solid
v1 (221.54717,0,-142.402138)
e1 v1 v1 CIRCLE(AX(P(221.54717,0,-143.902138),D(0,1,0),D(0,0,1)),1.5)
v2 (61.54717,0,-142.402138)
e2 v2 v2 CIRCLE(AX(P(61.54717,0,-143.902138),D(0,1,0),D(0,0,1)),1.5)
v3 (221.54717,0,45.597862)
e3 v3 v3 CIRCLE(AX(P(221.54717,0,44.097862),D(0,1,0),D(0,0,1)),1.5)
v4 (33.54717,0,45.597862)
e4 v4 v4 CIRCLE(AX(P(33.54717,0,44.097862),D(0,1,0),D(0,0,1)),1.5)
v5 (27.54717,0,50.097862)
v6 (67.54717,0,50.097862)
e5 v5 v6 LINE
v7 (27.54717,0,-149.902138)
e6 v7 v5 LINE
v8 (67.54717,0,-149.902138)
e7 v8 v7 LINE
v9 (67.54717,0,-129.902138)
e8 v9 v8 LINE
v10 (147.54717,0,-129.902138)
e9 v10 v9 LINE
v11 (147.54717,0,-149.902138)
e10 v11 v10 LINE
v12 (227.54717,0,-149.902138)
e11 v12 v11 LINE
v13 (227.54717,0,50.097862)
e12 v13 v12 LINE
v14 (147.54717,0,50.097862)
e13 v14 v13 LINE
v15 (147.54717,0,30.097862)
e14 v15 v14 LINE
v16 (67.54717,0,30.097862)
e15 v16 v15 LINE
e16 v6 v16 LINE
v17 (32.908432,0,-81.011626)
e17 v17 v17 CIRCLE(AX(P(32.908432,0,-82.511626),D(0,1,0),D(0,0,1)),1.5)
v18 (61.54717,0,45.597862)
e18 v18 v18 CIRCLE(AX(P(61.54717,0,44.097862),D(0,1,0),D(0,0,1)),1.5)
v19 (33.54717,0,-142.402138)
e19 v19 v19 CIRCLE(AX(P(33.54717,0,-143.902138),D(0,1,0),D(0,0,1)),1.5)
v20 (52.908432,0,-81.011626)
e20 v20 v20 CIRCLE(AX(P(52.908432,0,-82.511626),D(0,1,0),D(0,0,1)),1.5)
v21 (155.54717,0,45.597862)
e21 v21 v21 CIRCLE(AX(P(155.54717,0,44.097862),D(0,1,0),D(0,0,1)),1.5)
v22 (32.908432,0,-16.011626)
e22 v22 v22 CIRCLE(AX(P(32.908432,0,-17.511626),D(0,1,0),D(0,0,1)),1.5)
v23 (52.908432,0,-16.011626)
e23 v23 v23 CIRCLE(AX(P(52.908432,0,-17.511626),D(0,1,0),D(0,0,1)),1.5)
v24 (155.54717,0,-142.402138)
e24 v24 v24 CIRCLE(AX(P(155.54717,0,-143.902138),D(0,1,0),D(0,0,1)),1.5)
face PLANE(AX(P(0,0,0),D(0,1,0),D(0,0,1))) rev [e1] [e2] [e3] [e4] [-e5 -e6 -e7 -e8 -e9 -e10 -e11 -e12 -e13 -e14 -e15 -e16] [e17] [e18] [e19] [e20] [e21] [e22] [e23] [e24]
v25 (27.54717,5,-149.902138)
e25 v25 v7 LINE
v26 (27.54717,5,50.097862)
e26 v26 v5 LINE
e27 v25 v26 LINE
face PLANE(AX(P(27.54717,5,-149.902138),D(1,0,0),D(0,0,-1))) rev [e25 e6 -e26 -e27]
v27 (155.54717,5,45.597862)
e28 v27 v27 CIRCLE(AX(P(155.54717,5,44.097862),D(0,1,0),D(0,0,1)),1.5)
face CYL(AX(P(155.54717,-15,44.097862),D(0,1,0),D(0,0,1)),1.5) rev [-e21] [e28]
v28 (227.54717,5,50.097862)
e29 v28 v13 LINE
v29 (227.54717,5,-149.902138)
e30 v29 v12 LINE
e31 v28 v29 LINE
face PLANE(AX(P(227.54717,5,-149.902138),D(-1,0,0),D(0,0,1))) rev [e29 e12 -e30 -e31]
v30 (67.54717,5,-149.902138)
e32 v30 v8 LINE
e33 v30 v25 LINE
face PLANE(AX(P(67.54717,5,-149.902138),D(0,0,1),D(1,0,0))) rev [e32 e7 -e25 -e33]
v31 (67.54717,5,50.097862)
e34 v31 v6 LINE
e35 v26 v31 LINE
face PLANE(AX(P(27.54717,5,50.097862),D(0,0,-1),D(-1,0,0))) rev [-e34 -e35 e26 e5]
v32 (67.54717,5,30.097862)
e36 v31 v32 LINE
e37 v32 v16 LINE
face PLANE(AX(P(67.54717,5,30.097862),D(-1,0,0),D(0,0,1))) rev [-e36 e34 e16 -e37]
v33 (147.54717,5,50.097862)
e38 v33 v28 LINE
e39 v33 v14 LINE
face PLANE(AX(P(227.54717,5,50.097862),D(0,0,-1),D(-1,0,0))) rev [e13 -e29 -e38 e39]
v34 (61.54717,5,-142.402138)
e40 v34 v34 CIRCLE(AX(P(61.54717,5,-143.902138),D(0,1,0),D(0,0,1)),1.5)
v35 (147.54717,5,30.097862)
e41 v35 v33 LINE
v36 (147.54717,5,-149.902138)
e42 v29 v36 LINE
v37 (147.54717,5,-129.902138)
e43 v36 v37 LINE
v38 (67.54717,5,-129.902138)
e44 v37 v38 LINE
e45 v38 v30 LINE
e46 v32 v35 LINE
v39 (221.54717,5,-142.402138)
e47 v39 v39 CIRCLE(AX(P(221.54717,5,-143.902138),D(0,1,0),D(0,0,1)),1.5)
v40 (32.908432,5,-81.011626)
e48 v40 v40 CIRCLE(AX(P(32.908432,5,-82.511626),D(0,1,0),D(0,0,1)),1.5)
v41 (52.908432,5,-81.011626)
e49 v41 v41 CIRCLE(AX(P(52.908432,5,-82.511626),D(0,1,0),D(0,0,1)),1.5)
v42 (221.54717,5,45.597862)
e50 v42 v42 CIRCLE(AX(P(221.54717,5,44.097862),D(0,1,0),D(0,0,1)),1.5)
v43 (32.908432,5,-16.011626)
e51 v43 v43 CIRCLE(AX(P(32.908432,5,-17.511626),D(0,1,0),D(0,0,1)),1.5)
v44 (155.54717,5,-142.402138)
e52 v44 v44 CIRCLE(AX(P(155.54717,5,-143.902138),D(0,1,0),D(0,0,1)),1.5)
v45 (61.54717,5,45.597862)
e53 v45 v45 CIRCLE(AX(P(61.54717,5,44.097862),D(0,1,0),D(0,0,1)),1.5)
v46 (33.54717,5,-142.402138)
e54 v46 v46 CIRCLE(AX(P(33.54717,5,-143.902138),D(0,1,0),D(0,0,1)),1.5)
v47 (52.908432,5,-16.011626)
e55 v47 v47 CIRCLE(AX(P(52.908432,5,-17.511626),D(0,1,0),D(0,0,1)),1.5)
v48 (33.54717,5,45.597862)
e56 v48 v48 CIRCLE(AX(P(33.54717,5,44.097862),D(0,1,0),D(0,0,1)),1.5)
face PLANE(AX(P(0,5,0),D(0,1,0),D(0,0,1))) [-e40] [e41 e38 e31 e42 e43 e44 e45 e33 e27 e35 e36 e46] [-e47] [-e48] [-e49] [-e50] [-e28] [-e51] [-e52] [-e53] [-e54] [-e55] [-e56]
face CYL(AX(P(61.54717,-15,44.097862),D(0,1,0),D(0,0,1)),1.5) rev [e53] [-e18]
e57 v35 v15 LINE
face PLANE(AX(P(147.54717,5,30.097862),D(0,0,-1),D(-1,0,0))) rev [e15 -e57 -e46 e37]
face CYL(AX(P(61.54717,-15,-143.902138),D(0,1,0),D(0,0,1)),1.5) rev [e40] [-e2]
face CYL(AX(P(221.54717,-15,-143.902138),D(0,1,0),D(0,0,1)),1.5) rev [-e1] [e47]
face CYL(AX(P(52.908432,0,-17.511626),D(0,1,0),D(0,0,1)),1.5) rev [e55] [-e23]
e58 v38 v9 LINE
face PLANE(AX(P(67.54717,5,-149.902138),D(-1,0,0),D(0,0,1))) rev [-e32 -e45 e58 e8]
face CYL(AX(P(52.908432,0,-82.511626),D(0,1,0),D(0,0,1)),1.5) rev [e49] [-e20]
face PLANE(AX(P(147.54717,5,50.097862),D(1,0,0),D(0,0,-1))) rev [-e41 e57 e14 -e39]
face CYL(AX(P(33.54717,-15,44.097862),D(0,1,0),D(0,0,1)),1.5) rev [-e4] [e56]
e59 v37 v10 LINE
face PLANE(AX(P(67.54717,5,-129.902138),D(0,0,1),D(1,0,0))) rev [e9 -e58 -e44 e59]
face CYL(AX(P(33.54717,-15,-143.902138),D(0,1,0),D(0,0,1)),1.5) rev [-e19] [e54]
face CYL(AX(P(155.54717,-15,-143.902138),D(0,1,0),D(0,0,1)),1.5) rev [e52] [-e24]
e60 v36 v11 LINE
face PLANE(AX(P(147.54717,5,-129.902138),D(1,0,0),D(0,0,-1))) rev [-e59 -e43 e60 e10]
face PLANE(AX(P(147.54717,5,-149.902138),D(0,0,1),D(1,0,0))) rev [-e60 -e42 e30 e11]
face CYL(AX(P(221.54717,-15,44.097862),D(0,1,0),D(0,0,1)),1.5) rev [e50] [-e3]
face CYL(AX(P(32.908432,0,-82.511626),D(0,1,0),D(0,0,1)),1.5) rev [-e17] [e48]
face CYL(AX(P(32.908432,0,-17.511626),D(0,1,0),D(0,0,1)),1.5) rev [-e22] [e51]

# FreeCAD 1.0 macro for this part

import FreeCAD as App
import Part
import Sketcher
Q = App.Units.Quantity

doc = App.newDocument("Part")
body = doc.addObject("PartDesign::Body", "Body")

sketch1 = body.newObject("Sketcher::SketchObject", "Sketch")
sketch1.AttachmentSupport = (doc.getObject("XZ_Plane"), [""])
sketch1.MapMode = "FlatFace"
sketch1.addGeometry(Part.LineSegment(App.Vector(68, -130, 0), App.Vector(68, -150, 0)), False)
sketch1.addGeometry(Part.LineSegment(App.Vector(68, -150, 0), App.Vector(28, -150, 0)), False)
sketch1.addGeometry(Part.LineSegment(App.Vector(28, -150, 0), App.Vector(28, 50, 0)), False)
sketch1.addGeometry(Part.LineSegment(App.Vector(28, 50, 0), App.Vector(68, 50, 0)), False)
sketch1.addGeometry(Part.LineSegment(App.Vector(68, 50, 0), App.Vector(68, 30, 0)), False)
sketch1.addGeometry(Part.LineSegment(App.Vector(68, 30, 0), App.Vector(148, 30, 0)), False)
sketch1.addGeometry(Part.LineSegment(App.Vector(148, 30, 0), App.Vector(148, 50, 0)), False)
sketch1.addGeometry(Part.LineSegment(App.Vector(148, 50, 0), App.Vector(228, 50, 0)), False)
sketch1.addGeometry(Part.LineSegment(App.Vector(228, 50, 0), App.Vector(228, -150, 0)), False)
sketch1.addGeometry(Part.LineSegment(App.Vector(228, -150, 0), App.Vector(148, -150, 0)), False)
sketch1.addGeometry(Part.LineSegment(App.Vector(148, -150, 0), App.Vector(148, -130, 0)), False)
sketch1.addGeometry(Part.LineSegment(App.Vector(148, -130, 0), App.Vector(68, -130, 0)), False)
sketch1.addConstraint(Sketcher.Constraint("Coincident", 0, 2, 1, 1))
sketch1.addConstraint(Sketcher.Constraint("Coincident", 1, 2, 2, 1))
sketch1.addConstraint(Sketcher.Constraint("Coincident", 2, 2, 3, 1))
sketch1.addConstraint(Sketcher.Constraint("Coincident", 3, 2, 4, 1))
sketch1.addConstraint(Sketcher.Constraint("Coincident", 4, 2, 5, 1))
sketch1.addConstraint(Sketcher.Constraint("Coincident", 5, 2, 6, 1))
sketch1.addConstraint(Sketcher.Constraint("Coincident", 6, 2, 7, 1))
sketch1.addConstraint(Sketcher.Constraint("Coincident", 7, 2, 8, 1))
sketch1.addConstraint(Sketcher.Constraint("Coincident", 8, 2, 9, 1))
sketch1.addConstraint(Sketcher.Constraint("Coincident", 9, 2, 10, 1))
sketch1.addConstraint(Sketcher.Constraint("Coincident", 10, 2, 11, 1))
sketch1.addConstraint(Sketcher.Constraint("Coincident", 11, 2, 0, 1))
sketch1.addConstraint(Sketcher.Constraint("Vertical", 0))
sketch1.addConstraint(Sketcher.Constraint("Horizontal", 1))
sketch1.addConstraint(Sketcher.Constraint("Vertical", 2))
sketch1.addConstraint(Sketcher.Constraint("Horizontal", 3))
sketch1.addConstraint(Sketcher.Constraint("Vertical", 4))
sketch1.addConstraint(Sketcher.Constraint("Horizontal", 5))
sketch1.addConstraint(Sketcher.Constraint("Vertical", 6))
sketch1.addConstraint(Sketcher.Constraint("Horizontal", 7))
sketch1.addConstraint(Sketcher.Constraint("Vertical", 8))
sketch1.addConstraint(Sketcher.Constraint("Horizontal", 9))
sketch1.addConstraint(Sketcher.Constraint("Vertical", 10))
sketch1.addConstraint(Sketcher.Constraint("Horizontal", 11))
sketch1.addConstraint(Sketcher.Constraint("Horizontal", 3, 2, 6, 2))
sketch1.addConstraint(Sketcher.Constraint("Horizontal", 1, 2, 8, 2))
sketch1.addConstraint(Sketcher.Constraint("Vertical", 0, 2, 3, 2))
sketch1.addConstraint(Sketcher.Constraint("Vertical", 6, 2, 9, 2))
sketch1.addConstraint(Sketcher.Constraint("Equal", 5, 7))
sketch1.addConstraint(Sketcher.Constraint("Equal", 0, 4))
sketch1.addConstraint(Sketcher.Constraint("DistanceX", 1, 2, 1, 1, Q("40 mm")))
sketch1.addConstraint(Sketcher.Constraint("DistanceX", 5, 1, 5, 2, Q("80 mm")))
sketch1.addConstraint(Sketcher.Constraint("DistanceY", 0, 2, 0, 1, Q("20 mm")))
sketch1.addConstraint(Sketcher.Constraint("DistanceY", 2, 1, 2, 2, Q("200 mm")))
sketch1.addConstraint(Sketcher.Constraint("DistanceX", -1, 1, 0, 2, Q("67.54717 mm")))
sketch1.addConstraint(Sketcher.Constraint("DistanceY", 0, 2, -1, 1, Q("149.902138 mm")))
pad1 = body.newObject("PartDesign::Pad", "Pad")
pad1.Profile = sketch1
pad1.Length = 5
pad1.Reversed = True

sketch2 = body.newObject("Sketcher::SketchObject", "Sketch001")
sketch2.AttachmentSupport = (doc.getObject("XZ_Plane"), [""])
sketch2.MapMode = "FlatFace"
sketch2.AttachmentOffset = App.Placement(App.Vector(0, 0, -5), App.Rotation())
sketch2.addGeometry(Part.Circle(App.Vector(33.5, -143.9, 0), App.Vector(0, 0, 1), 1.5), False)
sketch2.addGeometry(Part.Circle(App.Vector(61.5, -143.9, 0), App.Vector(0, 0, 1), 1.5), False)
sketch2.addGeometry(Part.Circle(App.Vector(33.5, 44.1, 0), App.Vector(0, 0, 1), 1.5), False)
sketch2.addGeometry(Part.Circle(App.Vector(61.5, 44.1, 0), App.Vector(0, 0, 1), 1.5), False)
sketch2.addGeometry(Part.Circle(App.Vector(155.5, 44.1, 0), App.Vector(0, 0, 1), 1.5), False)
sketch2.addGeometry(Part.Circle(App.Vector(221.5, 44.1, 0), App.Vector(0, 0, 1), 1.5), False)
sketch2.addGeometry(Part.Circle(App.Vector(155.5, -143.9, 0), App.Vector(0, 0, 1), 1.5), False)
sketch2.addGeometry(Part.Circle(App.Vector(221.5, -143.9, 0), App.Vector(0, 0, 1), 1.5), False)
sketch2.addConstraint(Sketcher.Constraint("Equal", 0, 1))
sketch2.addConstraint(Sketcher.Constraint("Equal", 1, 2))
sketch2.addConstraint(Sketcher.Constraint("Equal", 2, 3))
sketch2.addConstraint(Sketcher.Constraint("Equal", 3, 4))
sketch2.addConstraint(Sketcher.Constraint("Equal", 4, 5))
sketch2.addConstraint(Sketcher.Constraint("Equal", 5, 6))
sketch2.addConstraint(Sketcher.Constraint("Equal", 6, 7))
sketch2.addConstraint(Sketcher.Constraint("Horizontal", 0, 3, 1, 3))
sketch2.addConstraint(Sketcher.Constraint("Horizontal", 2, 3, 3, 3))
sketch2.addConstraint(Sketcher.Constraint("Horizontal", 3, 3, 4, 3))
sketch2.addConstraint(Sketcher.Constraint("Horizontal", 4, 3, 5, 3))
sketch2.addConstraint(Sketcher.Constraint("Horizontal", 1, 3, 6, 3))
sketch2.addConstraint(Sketcher.Constraint("Horizontal", 6, 3, 7, 3))
sketch2.addConstraint(Sketcher.Constraint("Vertical", 0, 3, 2, 3))
sketch2.addConstraint(Sketcher.Constraint("Vertical", 1, 3, 3, 3))
sketch2.addConstraint(Sketcher.Constraint("Vertical", 4, 3, 6, 3))
sketch2.addConstraint(Sketcher.Constraint("Vertical", 5, 3, 7, 3))
sketch2.addConstraint(Sketcher.Constraint("Diameter", 0, Q("3 mm")))
sketch2.addConstraint(Sketcher.Constraint("DistanceX", 0, 3, 1, 3, Q("28 mm")))
sketch2.addConstraint(Sketcher.Constraint("DistanceY", 0, 3, 2, 3, Q("188 mm")))
sketch2.addConstraint(Sketcher.Constraint("DistanceX", 3, 3, 4, 3, Q("94 mm")))
sketch2.addConstraint(Sketcher.Constraint("DistanceX", 4, 3, 5, 3, Q("66 mm")))
sketch2.addConstraint(Sketcher.Constraint("DistanceX", -1, 1, 0, 3, Q("33.54717 mm")))
sketch2.addConstraint(Sketcher.Constraint("DistanceY", 0, 3, -1, 1, Q("143.902138 mm")))
pocket1 = body.newObject("PartDesign::Pocket", "Pocket")
pocket1.Profile = sketch2
pocket1.Length = 20
pocket1.Reversed = True

sketch3 = body.newObject("Sketcher::SketchObject", "Sketch002")
sketch3.AttachmentSupport = (doc.getObject("XZ_Plane"), [""])
sketch3.MapMode = "FlatFace"
sketch3.AttachmentOffset = App.Placement(App.Vector(0, 0, -5), App.Rotation())
sketch3.addGeometry(Part.Circle(App.Vector(32.9, -82.5, 0), App.Vector(0, 0, 1), 1.5), False)
sketch3.addGeometry(Part.Circle(App.Vector(32.9, -17.5, 0), App.Vector(0, 0, 1), 1.5), False)
sketch3.addGeometry(Part.Circle(App.Vector(52.9, -17.5, 0), App.Vector(0, 0, 1), 1.5), False)
sketch3.addGeometry(Part.Circle(App.Vector(52.9, -82.5, 0), App.Vector(0, 0, 1), 1.5), False)
sketch3.addConstraint(Sketcher.Constraint("Equal", 0, 1))
sketch3.addConstraint(Sketcher.Constraint("Equal", 1, 2))
sketch3.addConstraint(Sketcher.Constraint("Equal", 2, 3))
sketch3.addConstraint(Sketcher.Constraint("Horizontal", 1, 3, 2, 3))
sketch3.addConstraint(Sketcher.Constraint("Horizontal", 0, 3, 3, 3))
sketch3.addConstraint(Sketcher.Constraint("Vertical", 0, 3, 1, 3))
sketch3.addConstraint(Sketcher.Constraint("Vertical", 2, 3, 3, 3))
sketch3.addConstraint(Sketcher.Constraint("Diameter", 0, Q("3 mm")))
sketch3.addConstraint(Sketcher.Constraint("DistanceY", 0, 3, 1, 3, Q("65 mm")))
sketch3.addConstraint(Sketcher.Constraint("DistanceX", 1, 3, 2, 3, Q("20 mm")))
sketch3.addConstraint(Sketcher.Constraint("DistanceX", -1, 1, 0, 3, Q("32.908432 mm")))
sketch3.addConstraint(Sketcher.Constraint("DistanceY", 0, 3, -1, 1, Q("82.511626 mm")))
pocket2 = body.newObject("PartDesign::Pocket", "Pocket001")
pocket2.Profile = sketch3
pocket2.Length = 5
pocket2.Reversed = True

doc.recompute()
